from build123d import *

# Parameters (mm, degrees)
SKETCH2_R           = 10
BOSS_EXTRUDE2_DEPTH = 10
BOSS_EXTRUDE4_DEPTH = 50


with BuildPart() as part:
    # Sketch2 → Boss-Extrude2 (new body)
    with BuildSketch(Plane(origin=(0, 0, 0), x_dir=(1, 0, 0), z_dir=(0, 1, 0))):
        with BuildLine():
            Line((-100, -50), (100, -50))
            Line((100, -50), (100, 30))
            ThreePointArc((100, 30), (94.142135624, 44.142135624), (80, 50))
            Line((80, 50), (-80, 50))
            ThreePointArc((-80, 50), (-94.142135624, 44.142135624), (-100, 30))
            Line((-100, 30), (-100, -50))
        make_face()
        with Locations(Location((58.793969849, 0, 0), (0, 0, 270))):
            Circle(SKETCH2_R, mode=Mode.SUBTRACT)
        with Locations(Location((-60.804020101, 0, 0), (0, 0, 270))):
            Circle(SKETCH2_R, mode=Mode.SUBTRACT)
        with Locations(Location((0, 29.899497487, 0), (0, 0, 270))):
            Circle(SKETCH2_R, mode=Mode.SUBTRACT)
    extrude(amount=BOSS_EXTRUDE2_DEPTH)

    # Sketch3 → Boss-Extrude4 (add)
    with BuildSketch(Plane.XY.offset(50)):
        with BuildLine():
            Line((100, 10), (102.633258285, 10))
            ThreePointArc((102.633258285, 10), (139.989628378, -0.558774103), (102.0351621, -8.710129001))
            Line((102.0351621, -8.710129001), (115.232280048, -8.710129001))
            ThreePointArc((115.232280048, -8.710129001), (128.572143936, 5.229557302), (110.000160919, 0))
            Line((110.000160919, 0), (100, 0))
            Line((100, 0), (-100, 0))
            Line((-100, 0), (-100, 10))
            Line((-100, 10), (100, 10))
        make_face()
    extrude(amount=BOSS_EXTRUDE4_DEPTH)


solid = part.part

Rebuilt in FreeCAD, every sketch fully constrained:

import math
import FreeCAD as App
import Part
import Sketcher
from FreeCAD import Vector
Q = App.Units.Quantity

doc = App.newDocument("Part")
params = doc.addObject("Spreadsheet::Sheet", "Params")
for row, (alias, value) in enumerate([
    ("sketch1_diameter", "20 mm"),
    ("sketch1_radius", "20 mm"),
    ("sketch1_width", "200 mm"),
    ("sketch1_height", "80 mm"),
    ("pad1_length", "10 mm"),
    ("sketch2_radius", "20 mm"),
    ("sketch2_radius2", "10 mm"),
    ("sketch2_height", "10 mm"),
    ("pad2_length", "50 mm"),
], start=1):
    params.set(f"A{row}", alias)
    params.set(f"B{row}", "=" + value)
    params.setAlias(f"B{row}", alias)

body = doc.addObject("PartDesign::Body", "Body")

# Sketch on XZ plane
sketch1 = body.newObject("Sketcher::SketchObject", "Sketch")
sketch1.AttachmentSupport = (doc.getObject("XZ_Plane"), [""])
sketch1.MapMode = "FlatFace"
sketch1.addGeometry([
    Part.LineSegment(Vector(-100, 50, 0), Vector(100, 50, 0)),  # 0
    Part.LineSegment(Vector(100, 50, 0), Vector(100, -30, 0)),  # 1
    Part.ArcOfCircle(Part.Circle(Vector(80, -30, 0), Vector(0, 0, 1), 20), math.radians(-90), math.radians(0)),  # 2
    Part.LineSegment(Vector(80, -50, 0), Vector(-80, -50, 0)),  # 3
    Part.ArcOfCircle(Part.Circle(Vector(-80, -30, 0), Vector(0, 0, 1), 20), math.radians(180), math.radians(270)),  # 4
    Part.LineSegment(Vector(-100, -30, 0), Vector(-100, 50, 0)),  # 5
    Part.Circle(Vector(-60.80402, 0, 0), Vector(0, 0, 1), 10),  # 6
    Part.Circle(Vector(58.79397, 0, 0), Vector(0, 0, 1), 10),  # 7
    Part.Circle(Vector(0, -29.899497, 0), Vector(0, 0, 1), 10),  # 8
], False)
sketch1.addConstraint([
    Sketcher.Constraint("Coincident", 0, 2, 1, 1),
    Sketcher.Constraint("Tangent", 1, 2, 2, 2),
    Sketcher.Constraint("Tangent", 2, 1, 3, 1),
    Sketcher.Constraint("Tangent", 3, 2, 4, 2),
    Sketcher.Constraint("Tangent", 4, 1, 5, 1),
    Sketcher.Constraint("Coincident", 5, 2, 0, 1),
    Sketcher.Constraint("Horizontal", 0),
    Sketcher.Constraint("Vertical", 1),
    Sketcher.Constraint("Horizontal", 3),
    Sketcher.Constraint("Vertical", 5),
    Sketcher.Constraint("Equal", 2, 4),
    Sketcher.Constraint("Equal", 6, 7),
    Sketcher.Constraint("Equal", 7, 8),
    Sketcher.Constraint("PointOnObject", 6, 3, -1),
    Sketcher.Constraint("PointOnObject", 7, 3, -1),
    Sketcher.Constraint("PointOnObject", 8, 3, -2),
    Sketcher.Constraint("Diameter", 6, Q("20 mm")),
    Sketcher.Constraint("Radius", 2, Q("20 mm")),
    Sketcher.Constraint("DistanceX", 0, 1, 0, 2, Q("200 mm")),
    Sketcher.Constraint("DistanceY", 1, 2, 1, 1, Q("80 mm")),
    Sketcher.Constraint("DistanceX", -1, 1, 2, 3, Q("80 mm")),
    Sketcher.Constraint("DistanceY", 2, 3, -1, 1, Q("30 mm")),
    Sketcher.Constraint("DistanceX", 6, 3, -1, 1, Q("60.80402 mm")),
    Sketcher.Constraint("DistanceX", -1, 1, 7, 3, Q("58.79397 mm")),
    Sketcher.Constraint("DistanceY", 8, 3, -1, 1, Q("29.899497 mm")),
])
sketch1.setExpression("Constraints[16]", "Params.sketch1_diameter")
sketch1.setExpression("Constraints[17]", "Params.sketch1_radius")
sketch1.setExpression("Constraints[18]", "Params.sketch1_width")
sketch1.setExpression("Constraints[19]", "Params.sketch1_height")
pad1 = body.newObject("PartDesign::Pad", "Pad")
pad1.Profile = sketch1
pad1.setExpression("Length", "Params.pad1_length")
pad1.Reversed = True

# Sketch on XY plane
sketch2 = body.newObject("Sketcher::SketchObject", "Sketch001")
sketch2.AttachmentSupport = (doc.getObject("XY_Plane"), [""])
sketch2.MapMode = "FlatFace"
sketch2.AttachmentOffset = App.Placement(Vector(0, 0, 50), App.Rotation())
sketch2.addGeometry([
    Part.ArcOfCircle(Part.Circle(Vector(119.999839, 0.080228, 0), Vector(0, 0, 1), 20), math.radians(-153.926877), math.radians(150.26504)),  # 0
    Part.LineSegment(Vector(102.633258, 10, 0), Vector(-100, 10, 0)),  # 1
    Part.LineSegment(Vector(-100, 10, 0), Vector(-100, 0, 0)),  # 2
    Part.LineSegment(Vector(-100, 0, 0), Vector(110.000161, 0, 0)),  # 3
    Part.ArcOfCircle(Part.Circle(Vector(119.999839, 0.080228, 0), Vector(0, 0, 1), 10), math.radians(-118.473738), math.radians(180.459679)),  # 4
    Part.LineSegment(Vector(115.23228, -8.710129, 0), Vector(102.035162, -8.710129, 0)),  # 5
], False)
sketch2.addConstraint([
    Sketcher.Constraint("Coincident", 0, 2, 1, 1),
    Sketcher.Constraint("Coincident", 1, 2, 2, 1),
    Sketcher.Constraint("Coincident", 2, 2, 3, 1),
    Sketcher.Constraint("Coincident", 3, 2, 4, 2),
    Sketcher.Constraint("Coincident", 4, 1, 5, 1),
    Sketcher.Constraint("Coincident", 5, 2, 0, 1),
    Sketcher.Constraint("Horizontal", 1),
    Sketcher.Constraint("Vertical", 2),
    Sketcher.Constraint("Horizontal", 3),
    Sketcher.Constraint("Horizontal", 5),
    Sketcher.Constraint("Coincident", 4, 3, 0, 3),
    Sketcher.Constraint("PointOnObject", 2, 2, -1),
    Sketcher.Constraint("Radius", 0, Q("20 mm")),
    Sketcher.Constraint("Radius", 4, Q("10 mm")),
    Sketcher.Constraint("DistanceY", 2, 2, 2, 1, Q("10 mm")),
    Sketcher.Constraint("DistanceX", 1, 2, -1, 1, Q("100 mm")),
    Sketcher.Constraint("DistanceX", 5, 2, 3, 2, Q("7.964999 mm")),
    Sketcher.Constraint("DistanceX", 1, 2, 1, 1, Q("202.633258 mm")),
    Sketcher.Constraint("DistanceX", 3, 1, 3, 2, Q("210.000161 mm")),
])
sketch2.setExpression("Constraints[12]", "Params.sketch2_radius")
sketch2.setExpression("Constraints[13]", "Params.sketch2_radius2")
sketch2.setExpression("Constraints[14]", "Params.sketch2_height")
pad2 = body.newObject("PartDesign::Pad", "Pad001")
pad2.Profile = sketch2
pad2.setExpression("Length", "Params.pad2_length")

doc.recompute()
